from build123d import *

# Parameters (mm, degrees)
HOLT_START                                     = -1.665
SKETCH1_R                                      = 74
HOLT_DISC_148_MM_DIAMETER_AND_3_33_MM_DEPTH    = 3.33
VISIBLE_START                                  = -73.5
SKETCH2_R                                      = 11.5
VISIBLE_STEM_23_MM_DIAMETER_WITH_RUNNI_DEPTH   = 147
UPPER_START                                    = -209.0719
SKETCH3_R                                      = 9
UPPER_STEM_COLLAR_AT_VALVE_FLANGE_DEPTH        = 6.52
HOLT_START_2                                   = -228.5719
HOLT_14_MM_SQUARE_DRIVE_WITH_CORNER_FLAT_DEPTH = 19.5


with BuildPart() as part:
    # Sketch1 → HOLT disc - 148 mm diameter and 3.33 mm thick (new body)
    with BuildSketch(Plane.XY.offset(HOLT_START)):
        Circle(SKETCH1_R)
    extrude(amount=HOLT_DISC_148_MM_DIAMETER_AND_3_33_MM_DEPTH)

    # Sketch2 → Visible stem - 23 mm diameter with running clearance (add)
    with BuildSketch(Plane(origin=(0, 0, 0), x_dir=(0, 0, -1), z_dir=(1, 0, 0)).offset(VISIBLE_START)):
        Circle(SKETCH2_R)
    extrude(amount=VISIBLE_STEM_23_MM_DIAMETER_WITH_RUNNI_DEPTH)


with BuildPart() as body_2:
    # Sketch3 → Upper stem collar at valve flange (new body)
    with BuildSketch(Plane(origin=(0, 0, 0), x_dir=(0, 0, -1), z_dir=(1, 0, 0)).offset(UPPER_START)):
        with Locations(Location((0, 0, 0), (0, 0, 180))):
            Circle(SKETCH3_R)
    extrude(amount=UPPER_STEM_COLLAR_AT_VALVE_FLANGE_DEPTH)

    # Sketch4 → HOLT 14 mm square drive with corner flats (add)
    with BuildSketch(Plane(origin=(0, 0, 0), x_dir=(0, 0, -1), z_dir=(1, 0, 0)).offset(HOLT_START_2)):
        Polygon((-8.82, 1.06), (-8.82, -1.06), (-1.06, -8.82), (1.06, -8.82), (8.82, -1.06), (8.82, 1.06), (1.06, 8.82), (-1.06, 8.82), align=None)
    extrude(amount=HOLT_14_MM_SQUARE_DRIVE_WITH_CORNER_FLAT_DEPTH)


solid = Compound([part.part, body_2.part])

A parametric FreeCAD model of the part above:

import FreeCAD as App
import Part
import Sketcher
from FreeCAD import Vector


def add_polygon(sketch, points):
    """Adds a closed chain of lines whose ends are joined by coincident constraints."""
    first, n = sketch.GeometryCount, len(points)
    for a, b in zip(points, points[1:] + points[:1]):
        sketch.addGeometry(Part.LineSegment(App.Vector(*a, 0), App.Vector(*b, 0)), False)
    for i in range(n):
        sketch.addConstraint(Sketcher.Constraint("Coincident", first + i, 2, first + (i + 1) % n, 1))

doc = App.newDocument("Part")
body = doc.addObject("PartDesign::Body", "Body")

# Sketch on XY plane
sketch1 = body.newObject("Sketcher::SketchObject", "Sketch")
sketch1.AttachmentSupport = (doc.getObject("XY_Plane"), [""])
sketch1.MapMode = "FlatFace"
sketch1.AttachmentOffset = App.Placement(Vector(0, 0, -1.665), App.Rotation())
sketch1.addGeometry(Part.Circle(Vector(0, 0, 0), Vector(0, 0, 1), 74), False)
sketch1.addConstraint(Sketcher.Constraint("Coincident", 0, 3, -1, 1))
sketch1.addConstraint(Sketcher.Constraint("Diameter", 0, 148.0))
pad1 = body.newObject("PartDesign::Pad", "Pad")
pad1.Profile = sketch1
pad1.Length = 3.33

# Sketch on YZ plane
sketch2 = body.newObject("Sketcher::SketchObject", "Sketch001")
sketch2.AttachmentSupport = (doc.getObject("YZ_Plane"), [""])
sketch2.MapMode = "FlatFace"
sketch2.AttachmentOffset = App.Placement(Vector(0, 0, -73.5), App.Rotation())
sketch2.addGeometry(Part.Circle(Vector(0, 0, 0), Vector(0, 0, 1), 11.5), False)
sketch2.addConstraint(Sketcher.Constraint("Coincident", 0, 3, -1, 1))
sketch2.addConstraint(Sketcher.Constraint("Diameter", 0, 23.0))
pad2 = body.newObject("PartDesign::Pad", "Pad001")
pad2.Profile = sketch2
pad2.Length = 147
body2 = doc.addObject("PartDesign::Body", "Body001")

# Sketch on YZ plane
sketch3 = body2.newObject("Sketcher::SketchObject", "Sketch002")
sketch3.AttachmentSupport = (doc.getObject("YZ_Plane001"), [""])
sketch3.MapMode = "FlatFace"
sketch3.AttachmentOffset = App.Placement(Vector(0, 0, -209.0719), App.Rotation())
sketch3.addGeometry(Part.Circle(Vector(0, 0, 0), Vector(0, 0, 1), 9), False)
sketch3.addConstraint(Sketcher.Constraint("Coincident", 0, 3, -1, 1))
sketch3.addConstraint(Sketcher.Constraint("Diameter", 0, 18.0))
pad3 = body2.newObject("PartDesign::Pad", "Pad002")
pad3.Profile = sketch3
pad3.Length = 6.52

# Sketch on YZ plane
sketch4 = body2.newObject("Sketcher::SketchObject", "Sketch003")
sketch4.AttachmentSupport = (doc.getObject("YZ_Plane001"), [""])
sketch4.MapMode = "FlatFace"
sketch4.AttachmentOffset = App.Placement(Vector(0, 0, -228.5719), App.Rotation())
add_polygon(sketch4, [(1.06, 8.82), (-1.06, 8.82), (-8.82, 1.06), (-8.82, -1.06), (-1.06, -8.82), (1.06, -8.82), (8.82, -1.06), (8.82, 1.06)])  # lines 0-7
sketch4.addConstraint(Sketcher.Constraint("Horizontal", 0))
sketch4.addConstraint(Sketcher.Constraint("Vertical", 2))
sketch4.addConstraint(Sketcher.Constraint("Horizontal", 4))
sketch4.addConstraint(Sketcher.Constraint("Vertical", 6))
sketch4.addConstraint(Sketcher.Constraint("Symmetric", 0, 2, 4, 2, -1, 1))
sketch4.addConstraint(Sketcher.Constraint("Symmetric", 1, 2, 5, 2, -1, 1))
sketch4.addConstraint(Sketcher.Constraint("Perpendicular", 1, 3))
sketch4.addConstraint(Sketcher.Constraint("Perpendicular", 5, 7))
sketch4.addConstraint(Sketcher.Constraint("Horizontal", 2, 2, 5, 2))
sketch4.addConstraint(Sketcher.Constraint("Horizontal", 1, 2, 6, 2))
sketch4.addConstraint(Sketcher.Constraint("Vertical", 0, 2, 3, 2))
sketch4.addConstraint(Sketcher.Constraint("Equal", 4, 2))
sketch4.addConstraint(Sketcher.Constraint("DistanceX", 0, 2, 0, 1, 2.12))
sketch4.addConstraint(Sketcher.Constraint("DistanceY", -1, 1, 0, 2, 8.82))
pad4 = body2.newObject("PartDesign::Pad", "Pad003")
pad4.Profile = sketch4
pad4.Length = 19.5

doc.recompute()
